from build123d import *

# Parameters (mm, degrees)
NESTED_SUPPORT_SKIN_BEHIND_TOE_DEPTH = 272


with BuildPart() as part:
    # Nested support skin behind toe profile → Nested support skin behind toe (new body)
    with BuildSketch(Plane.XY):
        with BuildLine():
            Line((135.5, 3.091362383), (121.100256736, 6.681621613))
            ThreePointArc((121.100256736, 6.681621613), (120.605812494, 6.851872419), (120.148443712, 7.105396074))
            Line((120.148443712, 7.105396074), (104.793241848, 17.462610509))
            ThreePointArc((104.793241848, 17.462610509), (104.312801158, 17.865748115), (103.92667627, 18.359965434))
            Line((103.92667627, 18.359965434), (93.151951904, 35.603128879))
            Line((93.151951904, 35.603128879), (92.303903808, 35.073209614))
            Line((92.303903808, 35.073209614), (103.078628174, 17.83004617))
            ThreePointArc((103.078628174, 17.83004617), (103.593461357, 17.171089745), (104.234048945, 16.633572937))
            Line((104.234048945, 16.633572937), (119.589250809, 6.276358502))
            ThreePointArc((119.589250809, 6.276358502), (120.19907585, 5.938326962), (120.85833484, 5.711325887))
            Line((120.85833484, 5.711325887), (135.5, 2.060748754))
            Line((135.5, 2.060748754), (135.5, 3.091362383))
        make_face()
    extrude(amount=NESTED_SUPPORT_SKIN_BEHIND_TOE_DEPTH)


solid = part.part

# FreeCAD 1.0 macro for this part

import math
import FreeCAD as App
import Part
import Sketcher

V = App.Vector
Q = App.Units.Quantity

doc = App.newDocument("Part")
params = doc.addObject("Spreadsheet::Sheet", "Params")
for row, (alias, value) in enumerate([
    ("sketch1_radius", "3 mm"),
    ("sketch1_radius2", "4 mm"),
    ("pad1_length", "272 mm"),
], start=1):
    params.set(f"A{row}", alias)
    params.set(f"B{row}", "=" + value)
    params.setAlias(f"B{row}", alias)

body = doc.addObject("PartDesign::Body", "Body")

sketch1 = body.newObject("Sketcher::SketchObject", "Sketch")
sketch1.AttachmentSupport = (doc.getObject("XY_Plane"), [""])
sketch1.MapMode = "FlatFace"
sketch1.addGeometry([
    Part.LineSegment(V(135.5, 3.1, 0), V(121.1, 6.7, 0)),
    Part.ArcOfCircle(Part.Circle(V(121.8, 9.6, 0), V(0, 0, 1), 3), math.radians(-124), math.radians(-104)),
    Part.LineSegment(V(120.1, 7.1, 0), V(104.8, 17.5, 0)),
    Part.ArcOfCircle(Part.Circle(V(106.5, 19.9, 0), V(0, 0, 1), 3), math.radians(-148), math.radians(-124)),
    Part.LineSegment(V(103.9, 18.4, 0), V(93.2, 35.6, 0)),
    Part.LineSegment(V(93.2, 35.6, 0), V(92.3, 35.1, 0)),
    Part.LineSegment(V(92.3, 35.1, 0), V(103.1, 17.8, 0)),
    Part.ArcOfCircle(Part.Circle(V(106.5, 19.9, 0), V(0, 0, 1), 4), math.radians(-148), math.radians(-124)),
    Part.LineSegment(V(104.2, 16.6, 0), V(119.6, 6.3, 0)),
    Part.ArcOfCircle(Part.Circle(V(121.8, 9.6, 0), V(0, 0, 1), 4), math.radians(-124), math.radians(-104)),
    Part.LineSegment(V(120.9, 5.7, 0), V(135.5, 2.1, 0)),
    Part.LineSegment(V(135.5, 2.1, 0), V(135.5, 3.1, 0)),
], False)
sketch1.addConstraint([
    Sketcher.Constraint("Tangent", 0, 2, 1, 2),
    Sketcher.Constraint("Tangent", 1, 1, 2, 1),
    Sketcher.Constraint("Tangent", 2, 2, 3, 2),
    Sketcher.Constraint("Tangent", 3, 1, 4, 1),
    Sketcher.Constraint("Coincident", 4, 2, 5, 1),
    Sketcher.Constraint("Coincident", 5, 2, 6, 1),
    Sketcher.Constraint("Tangent", 6, 2, 7, 1),
    Sketcher.Constraint("Tangent", 7, 2, 8, 1),
    Sketcher.Constraint("Tangent", 8, 2, 9, 1),
    Sketcher.Constraint("Tangent", 9, 2, 10, 1),
    Sketcher.Constraint("Coincident", 10, 2, 11, 1),
    Sketcher.Constraint("Coincident", 11, 2, 0, 1),
    Sketcher.Constraint("Vertical", 11),
    Sketcher.Constraint("Coincident", 7, 3, 3, 3),
    Sketcher.Constraint("Coincident", 9, 3, 1, 3),
    Sketcher.Constraint("Equal", 1, 3),
    Sketcher.Constraint("Equal", 7, 9),
    Sketcher.Constraint("Perpendicular", 4, 5),
    Sketcher.Constraint("Perpendicular", 5, 6),
    Sketcher.Constraint("Parallel", 0, 10),
    Sketcher.Constraint("Radius", 1, 3.0),
    Sketcher.Constraint("Radius", 7, 4.0),
    Sketcher.Constraint("Angle", 0, Q("166 deg")),
    Sketcher.Constraint("Angle", 2, Q("146 deg")),
    Sketcher.Constraint("Angle", 4, Q("122 deg")),
    Sketcher.Constraint("DistanceX", -1, 1, 10, 2, 135.5),
    Sketcher.Constraint("Distance", 10, 15.0899),
    Sketcher.Constraint("DistanceX", 3, 3, 1, 3, 15.355202),
    Sketcher.Constraint("DistanceY", 2, 2, 5, 2, 17.610599),
    Sketcher.Constraint("DistanceY", -1, 1, 1, 3, 9.592509),
])
sketch1.setExpression("Constraints[20]", "Params.sketch1_radius")
sketch1.setExpression("Constraints[21]", "Params.sketch1_radius2")
pad1 = body.newObject("PartDesign::Pad", "Pad")
pad1.Profile = sketch1
pad1.setExpression("Length", "Params.pad1_length")

doc.recompute()
